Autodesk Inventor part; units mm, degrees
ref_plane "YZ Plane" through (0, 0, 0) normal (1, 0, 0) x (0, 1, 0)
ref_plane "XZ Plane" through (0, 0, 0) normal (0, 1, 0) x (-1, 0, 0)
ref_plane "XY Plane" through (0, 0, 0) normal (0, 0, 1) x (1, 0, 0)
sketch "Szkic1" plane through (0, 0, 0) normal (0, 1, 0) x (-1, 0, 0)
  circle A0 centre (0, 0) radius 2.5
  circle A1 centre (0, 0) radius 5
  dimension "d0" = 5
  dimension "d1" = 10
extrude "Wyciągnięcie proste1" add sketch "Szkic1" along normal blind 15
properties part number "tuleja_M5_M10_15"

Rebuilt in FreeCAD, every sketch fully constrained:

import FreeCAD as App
import Part
import Sketcher

V = App.Vector

doc = App.newDocument("Part")
params = doc.addObject("Spreadsheet::Sheet", "Params")
for row, (alias, value) in enumerate([
    ("sketch1_diameter", "10 mm"),
    ("sketch1_diameter2", "5 mm"),
    ("pad1_length", "15 mm"),
], start=1):
    params.set(f"A{row}", alias)
    params.set(f"B{row}", "=" + value)
    params.setAlias(f"B{row}", alias)

body = doc.addObject("PartDesign::Body", "Body")

sketch1 = body.newObject("Sketcher::SketchObject", "Sketch")
sketch1.AttachmentSupport = (doc.getObject("XZ_Plane"), [""])
sketch1.MapMode = "FlatFace"
sketch1.addGeometry([
    Part.Circle(V(0, 0, 0), V(0, 0, 1), 5),
    Part.Circle(V(0, 0, 0), V(0, 0, 1), 2.5),
], False)
sketch1.addConstraint([
    Sketcher.Constraint("Coincident", 0, 3, -1, 1),
    Sketcher.Constraint("Coincident", 1, 3, -1, 1),
    Sketcher.Constraint("Diameter", 0, 10.0),
    Sketcher.Constraint("Diameter", 1, 5.0),
])
sketch1.setExpression("Constraints[2]", "Params.sketch1_diameter")
sketch1.setExpression("Constraints[3]", "Params.sketch1_diameter2")
pad1 = body.newObject("PartDesign::Pad", "Pad")
pad1.Profile = sketch1
pad1.setExpression("Length", "Params.pad1_length")
pad1.Reversed = True

doc.recompute()
